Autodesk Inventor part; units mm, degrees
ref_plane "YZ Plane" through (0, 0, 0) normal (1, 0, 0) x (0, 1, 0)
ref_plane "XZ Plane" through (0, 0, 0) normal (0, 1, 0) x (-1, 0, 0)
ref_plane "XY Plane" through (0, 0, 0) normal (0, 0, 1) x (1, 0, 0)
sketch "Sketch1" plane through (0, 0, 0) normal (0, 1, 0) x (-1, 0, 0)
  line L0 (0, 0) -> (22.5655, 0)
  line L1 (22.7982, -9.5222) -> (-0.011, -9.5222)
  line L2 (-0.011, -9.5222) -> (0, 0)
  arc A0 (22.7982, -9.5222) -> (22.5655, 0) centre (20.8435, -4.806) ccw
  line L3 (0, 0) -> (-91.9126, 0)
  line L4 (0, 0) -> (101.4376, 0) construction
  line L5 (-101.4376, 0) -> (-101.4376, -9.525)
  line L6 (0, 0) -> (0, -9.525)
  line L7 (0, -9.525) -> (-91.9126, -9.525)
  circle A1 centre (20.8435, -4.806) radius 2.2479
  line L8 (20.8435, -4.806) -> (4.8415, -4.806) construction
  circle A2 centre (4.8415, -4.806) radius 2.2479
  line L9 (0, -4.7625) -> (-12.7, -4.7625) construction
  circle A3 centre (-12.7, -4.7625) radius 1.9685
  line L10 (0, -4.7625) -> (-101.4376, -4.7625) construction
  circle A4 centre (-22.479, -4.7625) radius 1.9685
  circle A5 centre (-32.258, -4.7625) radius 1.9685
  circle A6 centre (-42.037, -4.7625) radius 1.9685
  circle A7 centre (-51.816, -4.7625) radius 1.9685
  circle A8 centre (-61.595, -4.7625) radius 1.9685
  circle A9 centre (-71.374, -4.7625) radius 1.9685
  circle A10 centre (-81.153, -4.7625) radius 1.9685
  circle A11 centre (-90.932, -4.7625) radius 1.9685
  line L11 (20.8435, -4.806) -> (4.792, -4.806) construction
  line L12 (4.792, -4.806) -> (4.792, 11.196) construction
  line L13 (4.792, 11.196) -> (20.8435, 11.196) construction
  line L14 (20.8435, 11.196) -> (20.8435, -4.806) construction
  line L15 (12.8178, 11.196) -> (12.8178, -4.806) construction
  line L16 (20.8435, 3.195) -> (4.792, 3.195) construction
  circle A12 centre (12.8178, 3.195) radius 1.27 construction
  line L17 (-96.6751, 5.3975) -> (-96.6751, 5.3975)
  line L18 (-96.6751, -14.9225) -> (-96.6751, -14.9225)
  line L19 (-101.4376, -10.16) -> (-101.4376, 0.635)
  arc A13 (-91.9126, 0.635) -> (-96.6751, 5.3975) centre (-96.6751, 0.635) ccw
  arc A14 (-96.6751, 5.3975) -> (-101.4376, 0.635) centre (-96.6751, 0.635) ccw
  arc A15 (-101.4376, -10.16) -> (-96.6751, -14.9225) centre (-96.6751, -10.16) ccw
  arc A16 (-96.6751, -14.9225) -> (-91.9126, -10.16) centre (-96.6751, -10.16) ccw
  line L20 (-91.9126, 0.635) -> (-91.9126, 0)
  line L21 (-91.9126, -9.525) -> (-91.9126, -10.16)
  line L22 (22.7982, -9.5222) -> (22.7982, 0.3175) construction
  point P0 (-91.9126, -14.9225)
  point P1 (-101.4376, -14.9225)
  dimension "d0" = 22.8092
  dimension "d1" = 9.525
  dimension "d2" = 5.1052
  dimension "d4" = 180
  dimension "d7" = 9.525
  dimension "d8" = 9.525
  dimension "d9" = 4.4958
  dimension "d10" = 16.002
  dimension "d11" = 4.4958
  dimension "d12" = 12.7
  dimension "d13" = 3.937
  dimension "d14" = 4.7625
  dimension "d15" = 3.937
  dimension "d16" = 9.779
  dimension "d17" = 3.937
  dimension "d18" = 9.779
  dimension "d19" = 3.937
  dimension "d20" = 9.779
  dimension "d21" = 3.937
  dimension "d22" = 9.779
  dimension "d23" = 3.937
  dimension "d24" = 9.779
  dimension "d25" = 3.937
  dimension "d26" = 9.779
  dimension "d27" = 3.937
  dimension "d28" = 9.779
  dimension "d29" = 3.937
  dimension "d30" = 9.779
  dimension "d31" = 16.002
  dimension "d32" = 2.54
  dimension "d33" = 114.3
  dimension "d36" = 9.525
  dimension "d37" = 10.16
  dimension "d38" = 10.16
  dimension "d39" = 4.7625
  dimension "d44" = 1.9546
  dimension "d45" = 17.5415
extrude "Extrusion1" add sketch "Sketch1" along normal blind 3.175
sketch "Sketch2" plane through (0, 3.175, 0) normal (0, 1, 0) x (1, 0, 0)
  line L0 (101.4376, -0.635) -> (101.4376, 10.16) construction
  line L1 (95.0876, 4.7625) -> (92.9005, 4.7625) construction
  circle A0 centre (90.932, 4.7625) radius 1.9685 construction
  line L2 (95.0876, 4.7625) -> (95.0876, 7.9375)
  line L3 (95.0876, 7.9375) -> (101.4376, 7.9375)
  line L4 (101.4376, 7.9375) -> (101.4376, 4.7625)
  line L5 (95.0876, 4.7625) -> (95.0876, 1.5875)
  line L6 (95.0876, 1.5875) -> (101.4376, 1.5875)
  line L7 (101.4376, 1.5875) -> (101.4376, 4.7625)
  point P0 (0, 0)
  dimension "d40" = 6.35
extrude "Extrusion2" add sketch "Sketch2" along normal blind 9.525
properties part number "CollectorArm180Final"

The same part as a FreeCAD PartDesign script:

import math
import FreeCAD as App
import Part
import Sketcher
Q = App.Units.Quantity

doc = App.newDocument("Part")
params = doc.addObject("Spreadsheet::Sheet", "Params")
for row, (alias, value) in enumerate([
    ("sketch1_diameter", "0.177 in"),
    ("sketch1_diameter2", "0.155 in"),
    ("sketch1_radius", "0.1875 in"),
    ("sketch1_radius2", "0.201 in"),
    ("sketch1_width", "4.507 in"),
    ("pad1_length", "0.125 in"),
    ("sketch2_width", "0.25 in"),
    ("pad2_length", "0.375 in"),
], start=1):
    params.set(f"A{row}", alias)
    params.set(f"B{row}", "=" + value)
    params.setAlias(f"B{row}", alias)

body = doc.addObject("PartDesign::Body", "Body")

# Sketch on XZ plane
sketch1 = body.newObject("Sketcher::SketchObject", "Sketch")
sketch1.AttachmentSupport = (doc.getObject("XZ_Plane"), [""])
sketch1.MapMode = "FlatFace"
sketch1.addGeometry(Part.LineSegment(App.Vector(-22.5655, 0, 0), App.Vector(91.9126, 0, 0)), False)
sketch1.addGeometry(Part.LineSegment(App.Vector(91.9126, 0, 0), App.Vector(91.9126, 0.635, 0)), False)
sketch1.addGeometry(Part.ArcOfCircle(Part.Circle(App.Vector(96.6751, 0.635, 0), App.Vector(0, 0, 1), 4.7625), math.radians(0), math.radians(180)), False)
sketch1.addGeometry(Part.LineSegment(App.Vector(101.4376, 0.635, 0), App.Vector(101.4376, -10.16, 0)), False)
sketch1.addGeometry(Part.ArcOfCircle(Part.Circle(App.Vector(96.6751, -10.16, 0), App.Vector(0, 0, 1), 4.7625), math.radians(180), math.radians(360)), False)
sketch1.addGeometry(Part.LineSegment(App.Vector(91.9126, -10.16, 0), App.Vector(91.9126, -9.525, 0)), False)
sketch1.addGeometry(Part.LineSegment(App.Vector(91.9126, -9.525, 0), App.Vector(0, -9.525, 0)), False)
sketch1.addGeometry(Part.LineSegment(App.Vector(0, -9.525, 0), App.Vector(0, -9.5222, 0)), False)
sketch1.addGeometry(Part.LineSegment(App.Vector(0, -9.5222, 0), App.Vector(-22.7982, -9.5222, 0)), False)
sketch1.addGeometry(Part.ArcOfCircle(Part.Circle(App.Vector(-20.8435, -4.806, 0), App.Vector(0, 0, 1), 5.1052), math.radians(110), math.radians(247)), False)
sketch1.addGeometry(Part.Circle(App.Vector(-20.8435, -4.806, 0), App.Vector(0, 0, 1), 2.2479), False)
sketch1.addGeometry(Part.Circle(App.Vector(-4.8415, -4.806, 0), App.Vector(0, 0, 1), 2.2479), False)
sketch1.addGeometry(Part.Circle(App.Vector(22.479, -4.7625, 0), App.Vector(0, 0, 1), 1.9685), False)
sketch1.addGeometry(Part.Circle(App.Vector(12.7, -4.7625, 0), App.Vector(0, 0, 1), 1.9685), False)
sketch1.addGeometry(Part.Circle(App.Vector(90.932, -4.7625, 0), App.Vector(0, 0, 1), 1.9685), False)
sketch1.addGeometry(Part.Circle(App.Vector(81.153, -4.7625, 0), App.Vector(0, 0, 1), 1.9685), False)
sketch1.addGeometry(Part.Circle(App.Vector(71.374, -4.7625, 0), App.Vector(0, 0, 1), 1.9685), False)
sketch1.addGeometry(Part.Circle(App.Vector(61.595, -4.7625, 0), App.Vector(0, 0, 1), 1.9685), False)
sketch1.addGeometry(Part.Circle(App.Vector(51.816, -4.7625, 0), App.Vector(0, 0, 1), 1.9685), False)
sketch1.addGeometry(Part.Circle(App.Vector(42.037, -4.7625, 0), App.Vector(0, 0, 1), 1.9685), False)
sketch1.addGeometry(Part.Circle(App.Vector(32.258, -4.7625, 0), App.Vector(0, 0, 1), 1.9685), False)
sketch1.addConstraint(Sketcher.Constraint("Coincident", 0, 2, 1, 1))
sketch1.addConstraint(Sketcher.Constraint("Tangent", 1, 2, 2, 2))
sketch1.addConstraint(Sketcher.Constraint("Tangent", 2, 1, 3, 1))
sketch1.addConstraint(Sketcher.Constraint("Tangent", 3, 2, 4, 2))
sketch1.addConstraint(Sketcher.Constraint("Tangent", 4, 1, 5, 1))
sketch1.addConstraint(Sketcher.Constraint("Coincident", 5, 2, 6, 1))
sketch1.addConstraint(Sketcher.Constraint("Coincident", 6, 2, 7, 1))
sketch1.addConstraint(Sketcher.Constraint("Coincident", 7, 2, 8, 1))
sketch1.addConstraint(Sketcher.Constraint("Coincident", 8, 2, 9, 2))
sketch1.addConstraint(Sketcher.Constraint("Coincident", 9, 1, 0, 1))
sketch1.addConstraint(Sketcher.Constraint("Horizontal", 0))
sketch1.addConstraint(Sketcher.Constraint("Vertical", 1))
sketch1.addConstraint(Sketcher.Constraint("Vertical", 3))
sketch1.addConstraint(Sketcher.Constraint("Vertical", 5))
sketch1.addConstraint(Sketcher.Constraint("Horizontal", 6))
sketch1.addConstraint(Sketcher.Constraint("Vertical", 7))
sketch1.addConstraint(Sketcher.Constraint("Horizontal", 8))
sketch1.addConstraint(Sketcher.Constraint("Coincident", 10, 3, 9, 3))
sketch1.addConstraint(Sketcher.Constraint("Equal", 2, 4))
sketch1.addConstraint(Sketcher.Constraint("Equal", 10, 11))
sketch1.addConstraint(Sketcher.Constraint("Equal", 12, 13))
sketch1.addConstraint(Sketcher.Constraint("Equal", 13, 14))
sketch1.addConstraint(Sketcher.Constraint("Equal", 14, 15))
sketch1.addConstraint(Sketcher.Constraint("Equal", 15, 16))
sketch1.addConstraint(Sketcher.Constraint("Equal", 16, 17))
sketch1.addConstraint(Sketcher.Constraint("Equal", 17, 18))
sketch1.addConstraint(Sketcher.Constraint("Equal", 18, 19))
sketch1.addConstraint(Sketcher.Constraint("Equal", 19, 20))
sketch1.addConstraint(Sketcher.Constraint("PointOnObject", 0, 2, -1))
sketch1.addConstraint(Sketcher.Constraint("PointOnObject", 6, 2, -2))
sketch1.addConstraint(Sketcher.Constraint("Horizontal", 10, 3, 11, 3))
sketch1.addConstraint(Sketcher.Constraint("Horizontal", 12, 3, 13, 3))
sketch1.addConstraint(Sketcher.Constraint("Horizontal", 13, 3, 14, 3))
sketch1.addConstraint(Sketcher.Constraint("Horizontal", 14, 3, 15, 3))
sketch1.addConstraint(Sketcher.Constraint("Horizontal", 15, 3, 16, 3))
sketch1.addConstraint(Sketcher.Constraint("Horizontal", 16, 3, 17, 3))
sketch1.addConstraint(Sketcher.Constraint("Horizontal", 17, 3, 18, 3))
sketch1.addConstraint(Sketcher.Constraint("Horizontal", 18, 3, 19, 3))
sketch1.addConstraint(Sketcher.Constraint("Horizontal", 19, 3, 20, 3))
sketch1.addConstraint(Sketcher.Constraint("Equal", 1, 5))
sketch1.addConstraint(Sketcher.Constraint("Diameter", 10, Q("0.177 in")))
sketch1.addConstraint(Sketcher.Constraint("Diameter", 12, Q("0.155 in")))
sketch1.addConstraint(Sketcher.Constraint("Radius", 2, Q("0.1875 in")))
sketch1.addConstraint(Sketcher.Constraint("Radius", 9, Q("0.201 in")))
sketch1.addConstraint(Sketcher.Constraint("DistanceY", 4, 3, -1, 1, Q("0.4 in")))
sketch1.addConstraint(Sketcher.Constraint("DistanceX", -1, 1, 13, 3, Q("0.5 in")))
sketch1.addConstraint(Sketcher.Constraint("DistanceX", 9, 3, 11, 3, Q("0.63 in")))
sketch1.addConstraint(Sketcher.Constraint("DistanceY", 12, 3, -1, 1, Q("0.1875 in")))
sketch1.addConstraint(Sketcher.Constraint("DistanceY", 5, 2, -1, 1, Q("0.375 in")))
sketch1.addConstraint(Sketcher.Constraint("DistanceX", 13, 3, 12, 3, Q("0.385 in")))
sketch1.addConstraint(Sketcher.Constraint("DistanceX", 15, 3, 14, 3, Q("0.385 in")))
sketch1.addConstraint(Sketcher.Constraint("DistanceX", 16, 3, 15, 3, Q("0.385 in")))
sketch1.addConstraint(Sketcher.Constraint("DistanceX", 17, 3, 16, 3, Q("0.385 in")))
sketch1.addConstraint(Sketcher.Constraint("DistanceX", 18, 3, 17, 3, Q("0.385 in")))
sketch1.addConstraint(Sketcher.Constraint("DistanceX", 19, 3, 18, 3, Q("0.385 in")))
sketch1.addConstraint(Sketcher.Constraint("DistanceX", 20, 3, 19, 3, Q("0.385 in")))
sketch1.addConstraint(Sketcher.Constraint("DistanceX", 12, 3, 20, 3, Q("0.385 in")))
sketch1.addConstraint(Sketcher.Constraint("DistanceX", 11, 3, 13, 3, Q("0.6906 in")))
sketch1.addConstraint(Sketcher.Constraint("DistanceX", 0, 1, 0, 2, Q("4.507 in")))
sketch1.addConstraint(Sketcher.Constraint("DistanceX", 8, 2, 9, 3, Q("1.9547 mm")))
sketch1.addConstraint(Sketcher.Constraint("DistanceX", 6, 2, 6, 1, Q("3.6186 in")))
sketch1.setExpression("Constraints[40]", "Params.sketch1_diameter")
sketch1.setExpression("Constraints[41]", "Params.sketch1_diameter2")
sketch1.setExpression("Constraints[42]", "Params.sketch1_radius")
sketch1.setExpression("Constraints[43]", "Params.sketch1_radius2")
sketch1.setExpression("Constraints[58]", "Params.sketch1_width")
pad1 = body.newObject("PartDesign::Pad", "Pad")
pad1.Profile = sketch1
pad1.setExpression("Length", "Params.pad1_length")
pad1.Reversed = True

# Sketch on XZ plane
sketch2 = body.newObject("Sketcher::SketchObject", "Sketch001")
sketch2.AttachmentSupport = (doc.getObject("XZ_Plane"), [""])
sketch2.MapMode = "FlatFace"
sketch2.AttachmentOffset = App.Placement(App.Vector(0, 0, -0.125 * 25.4), App.Rotation())
sketch2.addGeometry(Part.LineSegment(App.Vector(95, -8, 0), App.Vector(95, -2, 0)), False)
sketch2.addGeometry(Part.LineSegment(App.Vector(95, -2, 0), App.Vector(101, -2, 0)), False)
sketch2.addGeometry(Part.LineSegment(App.Vector(101, -2, 0), App.Vector(101, -8, 0)), False)
sketch2.addGeometry(Part.LineSegment(App.Vector(101, -8, 0), App.Vector(95, -8, 0)), False)
sketch2.addConstraint(Sketcher.Constraint("Coincident", 0, 2, 1, 1))
sketch2.addConstraint(Sketcher.Constraint("Coincident", 1, 2, 2, 1))
sketch2.addConstraint(Sketcher.Constraint("Coincident", 2, 2, 3, 1))
sketch2.addConstraint(Sketcher.Constraint("Coincident", 3, 2, 0, 1))
sketch2.addConstraint(Sketcher.Constraint("Vertical", 0))
sketch2.addConstraint(Sketcher.Constraint("Horizontal", 1))
sketch2.addConstraint(Sketcher.Constraint("Vertical", 2))
sketch2.addConstraint(Sketcher.Constraint("Horizontal", 3))
sketch2.addConstraint(Sketcher.Constraint("Equal", 3, 0))
sketch2.addConstraint(Sketcher.Constraint("DistanceX", 1, 1, 1, 2, Q("0.25 in")))
sketch2.addConstraint(Sketcher.Constraint("DistanceY", 0, 2, -1, 1, Q("0.0625 in")))
sketch2.addConstraint(Sketcher.Constraint("DistanceX", -1, 1, 0, 2, Q("3.7436 in")))
sketch2.setExpression("Constraints[9]", "Params.sketch2_width")
pad2 = body.newObject("PartDesign::Pad", "Pad001")
pad2.Profile = sketch2
pad2.setExpression("Length", "Params.pad2_length")
pad2.Reversed = True

doc.recompute()
